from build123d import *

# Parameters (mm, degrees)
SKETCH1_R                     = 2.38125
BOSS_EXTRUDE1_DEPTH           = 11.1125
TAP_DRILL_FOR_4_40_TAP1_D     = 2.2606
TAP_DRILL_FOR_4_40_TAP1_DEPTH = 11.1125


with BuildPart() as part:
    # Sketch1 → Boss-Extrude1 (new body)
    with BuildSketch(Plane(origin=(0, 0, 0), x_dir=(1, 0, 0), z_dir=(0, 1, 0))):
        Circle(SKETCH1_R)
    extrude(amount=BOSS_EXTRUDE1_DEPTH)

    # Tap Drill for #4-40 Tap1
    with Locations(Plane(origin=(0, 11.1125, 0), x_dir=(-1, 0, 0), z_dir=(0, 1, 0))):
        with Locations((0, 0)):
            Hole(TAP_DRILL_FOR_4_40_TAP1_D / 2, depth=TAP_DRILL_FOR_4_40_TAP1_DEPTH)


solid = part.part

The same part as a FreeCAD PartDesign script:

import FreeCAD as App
import Part
import Sketcher
from FreeCAD import Vector
Q = App.Units.Quantity

doc = App.newDocument("Part")
body = doc.addObject("PartDesign::Body", "Body")

sketch1 = doc.addObject("Sketcher::SketchObject", "Sketch")
body.addObject(sketch1)
sketch1.AttachmentSupport = (doc.XZ_Plane, [""])
sketch1.MapMode = "FlatFace"
sketch1.addGeometry(Part.Circle(Vector(0, 0, 0), Vector(0, 0, 1), 2.4), False)
sketch1.addConstraint(Sketcher.Constraint("Coincident", 0, 3, -1, 1))
sketch1.addConstraint(Sketcher.Constraint("Diameter", 0, Q("0.1875 in")))
pad1 = doc.addObject("PartDesign::Pad", "Pad")
body.addObject(pad1)
pad1.Profile = sketch1
pad1.Length = Q("0.4375 in")
pad1.Reversed = True

sketch2 = doc.addObject("Sketcher::SketchObject", "Sketch001")
body.addObject(sketch2)
sketch2.AttachmentSupport = (doc.XZ_Plane, [""])
sketch2.MapMode = "FlatFace"
sketch2.AttachmentOffset = App.Placement(Vector(0, 0, -0.4375 * 25.4), App.Rotation())
sketch2.addGeometry(Part.Circle(Vector(0, 0, 0), Vector(0, 0, 1), 1.1), False)
sketch2.addConstraint(Sketcher.Constraint("Coincident", 0, 3, -1, 1))
sketch2.addConstraint(Sketcher.Constraint("Diameter", 0, Q("0.089 in")))
doc.recompute()
hole = doc.addObject("PartDesign::Hole", "Hole")
body.addObject(hole)
hole.Profile = sketch2
hole.ThreadType = "None"
hole.Diameter = Q("0.089 in")
hole.DepthType = "Dimension"
hole.Depth = Q("0.4375 in")
hole.DrillPoint = "Flat"
hole.Reversed = True

doc.recompute()
